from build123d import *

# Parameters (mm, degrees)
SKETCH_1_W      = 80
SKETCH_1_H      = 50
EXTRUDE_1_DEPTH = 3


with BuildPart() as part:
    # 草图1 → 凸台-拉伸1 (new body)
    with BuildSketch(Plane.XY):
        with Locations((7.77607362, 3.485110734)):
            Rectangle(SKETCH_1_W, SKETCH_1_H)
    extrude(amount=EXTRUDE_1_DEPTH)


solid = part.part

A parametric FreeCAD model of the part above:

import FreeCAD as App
import Part
import Sketcher
from FreeCAD import Vector


def add_polygon(sketch, points):
    """Adds a closed chain of lines whose ends are joined by coincident constraints."""
    first, n = sketch.GeometryCount, len(points)
    for a, b in zip(points, points[1:] + points[:1]):
        sketch.addGeometry(Part.LineSegment(App.Vector(*a, 0), App.Vector(*b, 0)), False)
    for i in range(n):
        sketch.addConstraint(Sketcher.Constraint("Coincident", first + i, 2, first + (i + 1) % n, 1))

doc = App.newDocument("Part")
body = doc.addObject("PartDesign::Body", "Body")

sketch1 = body.newObject("Sketcher::SketchObject", "Sketch")
sketch1.AttachmentSupport = (doc.getObject("XY_Plane"), [""])
sketch1.MapMode = "FlatFace"
add_polygon(sketch1, [(-32.223926, 28.485111), (-32.223926, -21.514889), (47.776074, -21.514889), (47.776074, 28.485111)])
sketch1.addConstraint(Sketcher.Constraint("Vertical", 0))
sketch1.addConstraint(Sketcher.Constraint("Horizontal", 1))
sketch1.addConstraint(Sketcher.Constraint("Vertical", 2))
sketch1.addConstraint(Sketcher.Constraint("Horizontal", 3))
sketch1.addConstraint(Sketcher.Constraint("DistanceX", 1, 1, 1, 2, 80.0))
sketch1.addConstraint(Sketcher.Constraint("DistanceY", 0, 2, 0, 1, 50.0))
sketch1.addConstraint(Sketcher.Constraint("DistanceY", 0, 2, -1, 1, 21.514889))
sketch1.addConstraint(Sketcher.Constraint("DistanceX", 0, 2, -1, 1, 32.223926))
pad1 = body.newObject("PartDesign::Pad", "Pad")
pad1.Profile = sketch1
pad1.Length = 3

doc.recompute()
